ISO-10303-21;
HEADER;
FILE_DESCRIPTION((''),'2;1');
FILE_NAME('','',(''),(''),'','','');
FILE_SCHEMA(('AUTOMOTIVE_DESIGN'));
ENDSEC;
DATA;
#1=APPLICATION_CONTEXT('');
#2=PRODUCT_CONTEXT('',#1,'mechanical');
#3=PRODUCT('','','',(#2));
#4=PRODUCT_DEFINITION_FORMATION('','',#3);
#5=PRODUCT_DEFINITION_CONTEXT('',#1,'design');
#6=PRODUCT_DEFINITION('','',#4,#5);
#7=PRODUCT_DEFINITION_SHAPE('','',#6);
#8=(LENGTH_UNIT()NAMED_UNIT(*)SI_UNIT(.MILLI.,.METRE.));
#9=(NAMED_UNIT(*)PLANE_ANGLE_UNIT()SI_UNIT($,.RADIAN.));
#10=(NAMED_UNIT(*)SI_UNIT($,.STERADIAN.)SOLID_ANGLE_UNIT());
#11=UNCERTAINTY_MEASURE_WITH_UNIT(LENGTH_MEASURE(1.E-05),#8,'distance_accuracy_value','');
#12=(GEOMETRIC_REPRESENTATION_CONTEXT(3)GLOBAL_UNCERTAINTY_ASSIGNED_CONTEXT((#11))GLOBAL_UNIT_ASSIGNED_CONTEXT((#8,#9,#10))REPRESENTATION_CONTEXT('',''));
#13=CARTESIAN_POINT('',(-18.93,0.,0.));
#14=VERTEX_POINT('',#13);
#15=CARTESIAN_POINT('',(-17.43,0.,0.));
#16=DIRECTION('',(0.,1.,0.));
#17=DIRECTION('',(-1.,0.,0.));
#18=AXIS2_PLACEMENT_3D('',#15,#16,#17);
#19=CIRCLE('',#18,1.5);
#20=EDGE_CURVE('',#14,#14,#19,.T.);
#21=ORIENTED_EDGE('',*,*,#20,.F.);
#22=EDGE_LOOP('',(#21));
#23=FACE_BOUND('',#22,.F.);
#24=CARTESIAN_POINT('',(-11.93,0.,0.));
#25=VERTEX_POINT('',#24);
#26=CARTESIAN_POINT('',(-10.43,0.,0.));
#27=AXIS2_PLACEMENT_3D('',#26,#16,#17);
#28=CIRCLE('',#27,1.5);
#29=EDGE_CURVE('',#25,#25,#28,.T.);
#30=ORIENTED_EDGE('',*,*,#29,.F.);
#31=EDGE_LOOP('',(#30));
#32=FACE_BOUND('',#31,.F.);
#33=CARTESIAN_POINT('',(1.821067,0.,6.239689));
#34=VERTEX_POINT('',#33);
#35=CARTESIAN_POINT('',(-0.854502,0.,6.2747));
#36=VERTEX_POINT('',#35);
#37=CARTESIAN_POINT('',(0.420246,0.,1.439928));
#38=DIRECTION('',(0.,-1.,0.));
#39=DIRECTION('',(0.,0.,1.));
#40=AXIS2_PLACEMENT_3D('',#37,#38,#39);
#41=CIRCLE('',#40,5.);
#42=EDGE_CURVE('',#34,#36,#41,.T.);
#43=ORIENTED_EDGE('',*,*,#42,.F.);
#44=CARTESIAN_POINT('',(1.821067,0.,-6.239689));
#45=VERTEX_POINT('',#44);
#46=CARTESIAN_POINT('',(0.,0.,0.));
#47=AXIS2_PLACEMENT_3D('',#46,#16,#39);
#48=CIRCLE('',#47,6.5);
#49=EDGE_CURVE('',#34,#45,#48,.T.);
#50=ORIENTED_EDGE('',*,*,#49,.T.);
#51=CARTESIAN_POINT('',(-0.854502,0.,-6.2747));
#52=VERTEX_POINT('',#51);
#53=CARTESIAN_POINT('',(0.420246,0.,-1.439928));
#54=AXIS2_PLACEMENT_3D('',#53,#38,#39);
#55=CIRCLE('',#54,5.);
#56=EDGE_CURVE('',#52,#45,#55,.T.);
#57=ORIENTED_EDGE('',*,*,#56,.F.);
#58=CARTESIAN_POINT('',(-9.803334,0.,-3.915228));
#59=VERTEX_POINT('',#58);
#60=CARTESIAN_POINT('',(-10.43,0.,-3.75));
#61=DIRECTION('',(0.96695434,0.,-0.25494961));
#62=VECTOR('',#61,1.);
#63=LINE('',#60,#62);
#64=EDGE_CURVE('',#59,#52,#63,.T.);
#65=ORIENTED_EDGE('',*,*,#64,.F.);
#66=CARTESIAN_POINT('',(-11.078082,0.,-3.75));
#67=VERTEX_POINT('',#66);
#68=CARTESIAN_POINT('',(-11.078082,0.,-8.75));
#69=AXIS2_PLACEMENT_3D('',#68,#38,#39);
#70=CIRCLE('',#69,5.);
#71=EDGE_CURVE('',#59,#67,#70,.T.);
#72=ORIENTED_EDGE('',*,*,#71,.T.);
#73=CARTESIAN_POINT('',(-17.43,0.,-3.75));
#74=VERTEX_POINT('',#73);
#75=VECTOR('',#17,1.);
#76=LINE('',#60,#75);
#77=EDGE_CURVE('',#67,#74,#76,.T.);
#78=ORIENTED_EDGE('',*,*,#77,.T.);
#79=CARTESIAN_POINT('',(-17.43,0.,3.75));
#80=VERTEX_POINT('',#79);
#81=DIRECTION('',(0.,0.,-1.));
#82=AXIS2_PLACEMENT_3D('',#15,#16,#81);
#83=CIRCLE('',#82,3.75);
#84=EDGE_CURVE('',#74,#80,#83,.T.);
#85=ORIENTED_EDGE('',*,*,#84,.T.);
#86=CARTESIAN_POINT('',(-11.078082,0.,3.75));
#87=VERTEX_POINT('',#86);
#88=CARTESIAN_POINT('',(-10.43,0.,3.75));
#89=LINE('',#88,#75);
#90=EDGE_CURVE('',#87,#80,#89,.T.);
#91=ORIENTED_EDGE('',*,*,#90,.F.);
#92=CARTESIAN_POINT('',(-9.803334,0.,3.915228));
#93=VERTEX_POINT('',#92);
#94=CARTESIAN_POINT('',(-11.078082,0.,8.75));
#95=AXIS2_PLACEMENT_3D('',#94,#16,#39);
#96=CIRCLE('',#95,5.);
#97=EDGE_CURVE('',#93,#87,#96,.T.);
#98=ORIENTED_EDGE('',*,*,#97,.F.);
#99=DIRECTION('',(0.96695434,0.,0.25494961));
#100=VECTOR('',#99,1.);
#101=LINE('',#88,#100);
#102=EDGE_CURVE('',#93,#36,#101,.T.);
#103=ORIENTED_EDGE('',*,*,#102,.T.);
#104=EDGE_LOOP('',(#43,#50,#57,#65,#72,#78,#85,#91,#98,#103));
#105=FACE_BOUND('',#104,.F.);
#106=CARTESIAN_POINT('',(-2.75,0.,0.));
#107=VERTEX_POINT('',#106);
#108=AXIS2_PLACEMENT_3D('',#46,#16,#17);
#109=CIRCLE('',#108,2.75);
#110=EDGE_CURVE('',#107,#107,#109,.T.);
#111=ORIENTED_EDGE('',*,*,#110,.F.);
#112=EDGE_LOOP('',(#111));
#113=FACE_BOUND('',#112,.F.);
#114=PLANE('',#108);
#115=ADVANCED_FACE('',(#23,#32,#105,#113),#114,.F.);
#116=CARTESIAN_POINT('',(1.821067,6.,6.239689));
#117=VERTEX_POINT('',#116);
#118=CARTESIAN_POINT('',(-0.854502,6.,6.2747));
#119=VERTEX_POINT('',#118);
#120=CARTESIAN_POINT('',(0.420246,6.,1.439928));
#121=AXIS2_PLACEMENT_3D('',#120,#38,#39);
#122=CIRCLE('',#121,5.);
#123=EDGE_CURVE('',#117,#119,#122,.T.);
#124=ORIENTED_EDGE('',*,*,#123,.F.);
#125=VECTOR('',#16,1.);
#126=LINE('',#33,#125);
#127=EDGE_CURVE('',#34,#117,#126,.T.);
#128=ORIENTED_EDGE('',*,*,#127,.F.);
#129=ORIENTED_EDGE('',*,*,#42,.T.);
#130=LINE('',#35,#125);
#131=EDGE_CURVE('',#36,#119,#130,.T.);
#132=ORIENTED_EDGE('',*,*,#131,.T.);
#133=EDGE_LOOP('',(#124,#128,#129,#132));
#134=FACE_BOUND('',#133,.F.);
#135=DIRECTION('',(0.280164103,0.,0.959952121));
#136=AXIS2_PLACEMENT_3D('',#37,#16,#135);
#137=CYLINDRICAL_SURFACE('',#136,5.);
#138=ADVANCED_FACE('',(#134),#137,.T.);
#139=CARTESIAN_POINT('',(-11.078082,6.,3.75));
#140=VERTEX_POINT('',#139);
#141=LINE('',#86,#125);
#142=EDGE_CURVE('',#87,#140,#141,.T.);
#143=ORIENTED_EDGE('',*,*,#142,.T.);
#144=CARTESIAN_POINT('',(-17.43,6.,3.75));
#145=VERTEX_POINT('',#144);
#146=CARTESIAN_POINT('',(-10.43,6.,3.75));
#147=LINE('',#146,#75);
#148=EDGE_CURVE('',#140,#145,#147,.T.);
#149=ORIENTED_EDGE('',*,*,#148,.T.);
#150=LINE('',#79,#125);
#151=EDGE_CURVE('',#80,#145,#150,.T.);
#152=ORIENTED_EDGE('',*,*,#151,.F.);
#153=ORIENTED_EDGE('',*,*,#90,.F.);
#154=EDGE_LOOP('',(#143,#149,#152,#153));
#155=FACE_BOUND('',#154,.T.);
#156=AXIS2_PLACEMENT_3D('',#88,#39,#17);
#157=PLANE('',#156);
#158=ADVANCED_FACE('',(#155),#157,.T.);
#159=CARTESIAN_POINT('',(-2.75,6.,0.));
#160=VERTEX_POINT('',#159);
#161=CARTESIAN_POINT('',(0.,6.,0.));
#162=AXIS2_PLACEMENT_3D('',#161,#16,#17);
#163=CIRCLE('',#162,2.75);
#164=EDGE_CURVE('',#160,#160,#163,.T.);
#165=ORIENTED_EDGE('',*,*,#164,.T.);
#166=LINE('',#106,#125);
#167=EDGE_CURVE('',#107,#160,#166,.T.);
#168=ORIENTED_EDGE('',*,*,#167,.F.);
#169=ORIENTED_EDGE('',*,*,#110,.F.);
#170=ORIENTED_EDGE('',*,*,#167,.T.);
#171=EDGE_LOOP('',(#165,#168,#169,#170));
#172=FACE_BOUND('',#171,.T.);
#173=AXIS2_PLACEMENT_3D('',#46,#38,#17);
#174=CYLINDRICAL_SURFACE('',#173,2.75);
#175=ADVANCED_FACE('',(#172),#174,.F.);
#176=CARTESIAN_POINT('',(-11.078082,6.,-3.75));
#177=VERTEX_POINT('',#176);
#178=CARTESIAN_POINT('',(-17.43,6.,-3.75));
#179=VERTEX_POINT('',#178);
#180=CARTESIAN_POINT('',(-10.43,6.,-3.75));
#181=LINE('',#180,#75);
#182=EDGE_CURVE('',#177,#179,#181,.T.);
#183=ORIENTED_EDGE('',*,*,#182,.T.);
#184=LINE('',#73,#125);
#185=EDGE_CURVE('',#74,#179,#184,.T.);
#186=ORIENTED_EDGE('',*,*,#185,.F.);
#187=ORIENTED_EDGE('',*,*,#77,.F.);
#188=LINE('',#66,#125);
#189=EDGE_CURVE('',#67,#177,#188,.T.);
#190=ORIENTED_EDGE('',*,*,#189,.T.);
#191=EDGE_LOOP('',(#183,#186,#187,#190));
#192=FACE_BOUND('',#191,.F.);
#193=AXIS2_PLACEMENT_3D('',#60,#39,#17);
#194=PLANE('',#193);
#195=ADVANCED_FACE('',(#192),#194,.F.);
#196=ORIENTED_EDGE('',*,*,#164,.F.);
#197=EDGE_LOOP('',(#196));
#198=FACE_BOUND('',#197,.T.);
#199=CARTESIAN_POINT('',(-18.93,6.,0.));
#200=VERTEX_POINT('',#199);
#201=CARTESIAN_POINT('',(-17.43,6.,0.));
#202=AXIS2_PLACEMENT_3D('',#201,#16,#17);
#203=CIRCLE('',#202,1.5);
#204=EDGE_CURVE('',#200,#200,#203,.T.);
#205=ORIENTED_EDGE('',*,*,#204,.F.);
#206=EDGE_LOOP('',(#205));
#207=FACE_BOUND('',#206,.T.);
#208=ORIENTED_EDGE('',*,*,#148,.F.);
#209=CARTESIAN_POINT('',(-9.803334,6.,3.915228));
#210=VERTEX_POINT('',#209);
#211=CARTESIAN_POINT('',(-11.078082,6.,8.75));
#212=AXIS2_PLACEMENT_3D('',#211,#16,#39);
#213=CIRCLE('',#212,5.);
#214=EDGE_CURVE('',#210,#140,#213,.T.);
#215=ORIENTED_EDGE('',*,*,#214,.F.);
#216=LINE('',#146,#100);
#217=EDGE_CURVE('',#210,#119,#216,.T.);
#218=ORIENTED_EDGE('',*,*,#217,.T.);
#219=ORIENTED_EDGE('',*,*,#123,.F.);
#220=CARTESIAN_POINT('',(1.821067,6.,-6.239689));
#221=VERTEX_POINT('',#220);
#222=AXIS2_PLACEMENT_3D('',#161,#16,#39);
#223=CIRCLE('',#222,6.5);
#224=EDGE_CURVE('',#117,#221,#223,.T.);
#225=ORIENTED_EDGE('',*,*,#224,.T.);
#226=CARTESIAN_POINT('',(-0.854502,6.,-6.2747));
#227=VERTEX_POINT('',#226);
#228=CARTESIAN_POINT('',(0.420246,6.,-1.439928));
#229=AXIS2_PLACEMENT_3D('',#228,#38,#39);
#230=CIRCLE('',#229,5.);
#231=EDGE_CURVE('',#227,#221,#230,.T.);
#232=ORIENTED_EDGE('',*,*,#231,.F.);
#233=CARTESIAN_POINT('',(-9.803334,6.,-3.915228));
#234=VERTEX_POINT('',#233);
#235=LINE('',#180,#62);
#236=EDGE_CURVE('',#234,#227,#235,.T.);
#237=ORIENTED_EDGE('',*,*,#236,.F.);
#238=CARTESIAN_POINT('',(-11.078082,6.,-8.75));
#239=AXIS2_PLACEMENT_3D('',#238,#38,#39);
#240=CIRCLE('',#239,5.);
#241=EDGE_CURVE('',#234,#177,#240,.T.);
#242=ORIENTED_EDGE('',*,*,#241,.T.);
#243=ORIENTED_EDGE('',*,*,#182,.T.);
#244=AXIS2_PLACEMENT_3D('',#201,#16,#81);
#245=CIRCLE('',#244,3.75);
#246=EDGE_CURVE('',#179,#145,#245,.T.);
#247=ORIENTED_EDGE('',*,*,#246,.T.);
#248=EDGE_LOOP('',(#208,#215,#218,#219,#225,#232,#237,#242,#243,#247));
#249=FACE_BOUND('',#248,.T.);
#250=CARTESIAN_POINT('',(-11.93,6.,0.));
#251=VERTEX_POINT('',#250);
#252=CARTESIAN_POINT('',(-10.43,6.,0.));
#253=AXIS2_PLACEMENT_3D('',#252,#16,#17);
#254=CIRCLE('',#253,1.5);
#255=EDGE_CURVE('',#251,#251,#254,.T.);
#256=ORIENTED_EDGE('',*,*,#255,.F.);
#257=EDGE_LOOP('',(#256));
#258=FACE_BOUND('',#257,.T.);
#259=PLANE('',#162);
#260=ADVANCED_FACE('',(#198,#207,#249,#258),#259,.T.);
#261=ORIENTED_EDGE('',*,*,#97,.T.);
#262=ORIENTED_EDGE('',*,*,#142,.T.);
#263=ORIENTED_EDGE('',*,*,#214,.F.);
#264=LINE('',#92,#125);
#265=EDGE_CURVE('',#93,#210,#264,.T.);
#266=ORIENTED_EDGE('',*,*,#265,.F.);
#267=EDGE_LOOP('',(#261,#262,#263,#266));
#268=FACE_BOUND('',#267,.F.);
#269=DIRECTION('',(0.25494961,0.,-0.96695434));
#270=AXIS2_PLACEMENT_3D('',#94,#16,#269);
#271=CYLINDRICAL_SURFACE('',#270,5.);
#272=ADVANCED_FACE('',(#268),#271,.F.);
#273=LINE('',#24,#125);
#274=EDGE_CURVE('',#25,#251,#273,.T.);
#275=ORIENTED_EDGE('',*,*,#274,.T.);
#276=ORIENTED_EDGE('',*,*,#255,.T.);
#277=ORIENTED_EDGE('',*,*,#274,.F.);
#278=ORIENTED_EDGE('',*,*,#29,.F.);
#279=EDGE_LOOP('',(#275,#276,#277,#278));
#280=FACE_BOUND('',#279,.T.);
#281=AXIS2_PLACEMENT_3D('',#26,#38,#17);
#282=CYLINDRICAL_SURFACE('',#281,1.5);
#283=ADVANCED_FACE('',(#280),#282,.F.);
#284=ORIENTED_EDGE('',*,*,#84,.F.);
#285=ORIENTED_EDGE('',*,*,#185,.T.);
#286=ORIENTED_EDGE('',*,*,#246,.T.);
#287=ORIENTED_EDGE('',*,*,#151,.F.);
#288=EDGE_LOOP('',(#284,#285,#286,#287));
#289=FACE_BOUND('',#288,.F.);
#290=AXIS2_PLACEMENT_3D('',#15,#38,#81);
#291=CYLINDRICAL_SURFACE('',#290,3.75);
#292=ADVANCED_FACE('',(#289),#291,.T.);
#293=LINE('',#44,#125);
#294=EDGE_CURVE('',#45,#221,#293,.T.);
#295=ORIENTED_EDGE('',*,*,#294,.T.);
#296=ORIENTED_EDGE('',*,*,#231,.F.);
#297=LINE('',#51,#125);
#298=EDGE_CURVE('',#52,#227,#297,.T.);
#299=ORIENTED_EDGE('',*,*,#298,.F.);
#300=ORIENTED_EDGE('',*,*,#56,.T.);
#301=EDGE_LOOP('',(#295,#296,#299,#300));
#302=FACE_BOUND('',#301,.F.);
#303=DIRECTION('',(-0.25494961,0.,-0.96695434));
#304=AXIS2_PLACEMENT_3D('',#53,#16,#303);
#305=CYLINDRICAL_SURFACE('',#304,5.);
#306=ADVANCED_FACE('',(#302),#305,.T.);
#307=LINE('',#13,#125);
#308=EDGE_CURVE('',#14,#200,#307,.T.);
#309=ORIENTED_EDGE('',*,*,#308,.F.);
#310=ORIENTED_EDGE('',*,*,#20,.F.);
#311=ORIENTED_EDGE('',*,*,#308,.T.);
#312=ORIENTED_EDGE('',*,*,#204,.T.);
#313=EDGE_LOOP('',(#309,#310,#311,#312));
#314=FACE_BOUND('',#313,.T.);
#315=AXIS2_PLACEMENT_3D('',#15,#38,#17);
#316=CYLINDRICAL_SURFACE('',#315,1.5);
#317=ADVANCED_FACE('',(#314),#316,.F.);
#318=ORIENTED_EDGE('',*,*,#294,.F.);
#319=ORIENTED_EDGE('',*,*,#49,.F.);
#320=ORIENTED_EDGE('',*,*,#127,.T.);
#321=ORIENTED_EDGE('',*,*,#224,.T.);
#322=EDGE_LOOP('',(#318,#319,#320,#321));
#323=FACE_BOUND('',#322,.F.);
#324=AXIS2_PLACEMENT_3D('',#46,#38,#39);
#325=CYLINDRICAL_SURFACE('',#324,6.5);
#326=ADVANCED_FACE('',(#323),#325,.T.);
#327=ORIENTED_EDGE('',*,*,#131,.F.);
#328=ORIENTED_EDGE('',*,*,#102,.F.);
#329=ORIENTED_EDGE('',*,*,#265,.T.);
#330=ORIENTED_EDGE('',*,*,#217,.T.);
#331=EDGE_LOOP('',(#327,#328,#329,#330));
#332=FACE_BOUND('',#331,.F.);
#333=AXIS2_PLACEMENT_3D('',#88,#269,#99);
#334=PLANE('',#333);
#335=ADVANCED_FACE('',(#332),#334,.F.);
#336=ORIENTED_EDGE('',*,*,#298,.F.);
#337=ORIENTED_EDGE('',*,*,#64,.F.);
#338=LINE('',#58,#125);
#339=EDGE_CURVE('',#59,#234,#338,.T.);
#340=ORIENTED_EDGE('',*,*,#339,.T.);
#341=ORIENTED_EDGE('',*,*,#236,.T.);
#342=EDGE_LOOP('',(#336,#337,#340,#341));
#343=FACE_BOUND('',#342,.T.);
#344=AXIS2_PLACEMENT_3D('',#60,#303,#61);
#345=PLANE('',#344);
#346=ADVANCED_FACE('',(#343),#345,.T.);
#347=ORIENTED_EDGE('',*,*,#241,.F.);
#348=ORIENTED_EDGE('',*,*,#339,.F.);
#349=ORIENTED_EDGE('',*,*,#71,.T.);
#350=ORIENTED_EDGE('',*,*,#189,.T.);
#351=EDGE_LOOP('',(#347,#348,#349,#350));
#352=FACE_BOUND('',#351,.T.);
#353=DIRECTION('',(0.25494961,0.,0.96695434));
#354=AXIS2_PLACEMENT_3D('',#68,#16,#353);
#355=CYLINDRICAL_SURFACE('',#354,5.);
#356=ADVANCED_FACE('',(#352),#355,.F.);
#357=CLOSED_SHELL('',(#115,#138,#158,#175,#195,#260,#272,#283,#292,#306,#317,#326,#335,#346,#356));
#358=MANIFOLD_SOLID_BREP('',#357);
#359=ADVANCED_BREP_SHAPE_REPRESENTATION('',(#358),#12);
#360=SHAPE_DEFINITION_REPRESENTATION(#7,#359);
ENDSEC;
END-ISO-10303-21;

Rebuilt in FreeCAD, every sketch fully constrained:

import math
import FreeCAD as App
import Part
import Sketcher
from FreeCAD import Vector


def edges_at(feature, points):
    """Names of the edges that pass closest to the given points."""
    edges = feature.Shape.Edges
    near = lambda p: min(range(len(edges)), key=lambda i: edges[i].distToShape(Part.Vertex(*p))[0])
    return sorted({f"Edge{near(p) + 1}" for p in points})

doc = App.newDocument("Part")
params = doc.addObject("Spreadsheet::Sheet", "Params")
for row, (alias, value) in enumerate([
    ("sketch1_diameter", "3 mm"),
    ("sketch1_diameter2", "5.5 mm"),
    ("sketch1_radius", "6.5 mm"),
    ("sketch1_width", "7 mm"),
    ("sketch1_radius2", "3.75 mm"),
    ("pad1_length", "6 mm"),
    ("fillet_radius", "5 mm"),
    ("fillet2_radius", "5 mm"),
    ("fillet3_radius", "5 mm"),
], start=1):
    params.set(f"A{row}", alias)
    params.set(f"B{row}", "=" + value)
    params.setAlias(f"B{row}", alias)

body = doc.addObject("PartDesign::Body", "Body")

sketch1 = body.newObject("Sketcher::SketchObject", "Sketch")
sketch1.AttachmentSupport = (doc.getObject("XZ_Plane"), [""])
sketch1.MapMode = "FlatFace"
sketch1.addGeometry([
    Part.LineSegment(Vector(-10.43, 3.75, 0), Vector(0, 6.5, 0)),
    Part.ArcOfCircle(Part.Circle(Vector(0, 0, 0), Vector(0, 0, 1), 6.5), math.radians(-90), math.radians(90)),
    Part.LineSegment(Vector(0, -6.5, 0), Vector(-10.43, -3.75, 0)),
    Part.LineSegment(Vector(-10.43, -3.75, 0), Vector(-17.43, -3.75, 0)),
    Part.ArcOfCircle(Part.Circle(Vector(-17.43, 0, 0), Vector(0, 0, 1), 3.75), math.radians(90), math.radians(270)),
    Part.LineSegment(Vector(-17.43, 3.75, 0), Vector(-10.43, 3.75, 0)),
    Part.Circle(Vector(0, 0, 0), Vector(0, 0, 1), 2.75),
    Part.Circle(Vector(-10.43, 0, 0), Vector(0, 0, 1), 1.5),
    Part.Circle(Vector(-17.43, 0, 0), Vector(0, 0, 1), 1.5),
], False)
sketch1.addConstraint([
    Sketcher.Constraint("Coincident", 0, 2, 1, 2),
    Sketcher.Constraint("Coincident", 1, 1, 2, 1),
    Sketcher.Constraint("Coincident", 2, 2, 3, 1),
    Sketcher.Constraint("Tangent", 3, 2, 4, 2),
    Sketcher.Constraint("Tangent", 4, 1, 5, 1),
    Sketcher.Constraint("Coincident", 5, 2, 0, 1),
    Sketcher.Constraint("Horizontal", 3),
    Sketcher.Constraint("Horizontal", 5),
    Sketcher.Constraint("Coincident", 1, 3, -1, 1),
    Sketcher.Constraint("Coincident", 6, 3, -1, 1),
    Sketcher.Constraint("Coincident", 8, 3, 4, 3),
    Sketcher.Constraint("Equal", 7, 8),
    Sketcher.Constraint("Symmetric", 2, 2, 5, 2, -1),
    Sketcher.Constraint("PointOnObject", 7, 3, -1),
    Sketcher.Constraint("PointOnObject", 0, 2, -2),
    Sketcher.Constraint("PointOnObject", 1, 1, -2),
    Sketcher.Constraint("Vertical", 7, 3, 2, 2),
    Sketcher.Constraint("Diameter", 7, 3.0),
    Sketcher.Constraint("Diameter", 6, 5.5),
    Sketcher.Constraint("Radius", 1, 6.5),
    Sketcher.Constraint("DistanceX", 3, 2, 3, 1, 7.0),
    Sketcher.Constraint("Radius", 4, 3.75),
    Sketcher.Constraint("DistanceX", 4, 3, -1, 1, 17.43),
])
sketch1.setExpression("Constraints[17]", "Params.sketch1_diameter")
sketch1.setExpression("Constraints[18]", "Params.sketch1_diameter2")
sketch1.setExpression("Constraints[19]", "Params.sketch1_radius")
sketch1.setExpression("Constraints[20]", "Params.sketch1_width")
sketch1.setExpression("Constraints[21]", "Params.sketch1_radius2")
pad1 = body.newObject("PartDesign::Pad", "Pad")
pad1.Profile = sketch1
pad1.setExpression("Length", "Params.pad1_length")
pad1.Reversed = True
doc.recompute()

fillet = body.newObject("PartDesign::Fillet", "Fillet")
fillet.Base = (pad1, edges_at(pad1, [(-10.43, 3, 3.75)]))
fillet.setExpression("Radius", "Params.fillet_radius")
doc.recompute()

fillet2 = body.newObject("PartDesign::Fillet", "Fillet001")
fillet2.Base = (fillet, edges_at(fillet, [(-10.43, 3, -3.75)]))
fillet2.setExpression("Radius", "Params.fillet2_radius")
doc.recompute()

fillet3 = body.newObject("PartDesign::Fillet", "Fillet002")
fillet3.Base = (fillet2, edges_at(fillet2, [(0, 3, -6.5), (0, 3, 6.5)]))
fillet3.setExpression("Radius", "Params.fillet3_radius")

doc.recompute()
